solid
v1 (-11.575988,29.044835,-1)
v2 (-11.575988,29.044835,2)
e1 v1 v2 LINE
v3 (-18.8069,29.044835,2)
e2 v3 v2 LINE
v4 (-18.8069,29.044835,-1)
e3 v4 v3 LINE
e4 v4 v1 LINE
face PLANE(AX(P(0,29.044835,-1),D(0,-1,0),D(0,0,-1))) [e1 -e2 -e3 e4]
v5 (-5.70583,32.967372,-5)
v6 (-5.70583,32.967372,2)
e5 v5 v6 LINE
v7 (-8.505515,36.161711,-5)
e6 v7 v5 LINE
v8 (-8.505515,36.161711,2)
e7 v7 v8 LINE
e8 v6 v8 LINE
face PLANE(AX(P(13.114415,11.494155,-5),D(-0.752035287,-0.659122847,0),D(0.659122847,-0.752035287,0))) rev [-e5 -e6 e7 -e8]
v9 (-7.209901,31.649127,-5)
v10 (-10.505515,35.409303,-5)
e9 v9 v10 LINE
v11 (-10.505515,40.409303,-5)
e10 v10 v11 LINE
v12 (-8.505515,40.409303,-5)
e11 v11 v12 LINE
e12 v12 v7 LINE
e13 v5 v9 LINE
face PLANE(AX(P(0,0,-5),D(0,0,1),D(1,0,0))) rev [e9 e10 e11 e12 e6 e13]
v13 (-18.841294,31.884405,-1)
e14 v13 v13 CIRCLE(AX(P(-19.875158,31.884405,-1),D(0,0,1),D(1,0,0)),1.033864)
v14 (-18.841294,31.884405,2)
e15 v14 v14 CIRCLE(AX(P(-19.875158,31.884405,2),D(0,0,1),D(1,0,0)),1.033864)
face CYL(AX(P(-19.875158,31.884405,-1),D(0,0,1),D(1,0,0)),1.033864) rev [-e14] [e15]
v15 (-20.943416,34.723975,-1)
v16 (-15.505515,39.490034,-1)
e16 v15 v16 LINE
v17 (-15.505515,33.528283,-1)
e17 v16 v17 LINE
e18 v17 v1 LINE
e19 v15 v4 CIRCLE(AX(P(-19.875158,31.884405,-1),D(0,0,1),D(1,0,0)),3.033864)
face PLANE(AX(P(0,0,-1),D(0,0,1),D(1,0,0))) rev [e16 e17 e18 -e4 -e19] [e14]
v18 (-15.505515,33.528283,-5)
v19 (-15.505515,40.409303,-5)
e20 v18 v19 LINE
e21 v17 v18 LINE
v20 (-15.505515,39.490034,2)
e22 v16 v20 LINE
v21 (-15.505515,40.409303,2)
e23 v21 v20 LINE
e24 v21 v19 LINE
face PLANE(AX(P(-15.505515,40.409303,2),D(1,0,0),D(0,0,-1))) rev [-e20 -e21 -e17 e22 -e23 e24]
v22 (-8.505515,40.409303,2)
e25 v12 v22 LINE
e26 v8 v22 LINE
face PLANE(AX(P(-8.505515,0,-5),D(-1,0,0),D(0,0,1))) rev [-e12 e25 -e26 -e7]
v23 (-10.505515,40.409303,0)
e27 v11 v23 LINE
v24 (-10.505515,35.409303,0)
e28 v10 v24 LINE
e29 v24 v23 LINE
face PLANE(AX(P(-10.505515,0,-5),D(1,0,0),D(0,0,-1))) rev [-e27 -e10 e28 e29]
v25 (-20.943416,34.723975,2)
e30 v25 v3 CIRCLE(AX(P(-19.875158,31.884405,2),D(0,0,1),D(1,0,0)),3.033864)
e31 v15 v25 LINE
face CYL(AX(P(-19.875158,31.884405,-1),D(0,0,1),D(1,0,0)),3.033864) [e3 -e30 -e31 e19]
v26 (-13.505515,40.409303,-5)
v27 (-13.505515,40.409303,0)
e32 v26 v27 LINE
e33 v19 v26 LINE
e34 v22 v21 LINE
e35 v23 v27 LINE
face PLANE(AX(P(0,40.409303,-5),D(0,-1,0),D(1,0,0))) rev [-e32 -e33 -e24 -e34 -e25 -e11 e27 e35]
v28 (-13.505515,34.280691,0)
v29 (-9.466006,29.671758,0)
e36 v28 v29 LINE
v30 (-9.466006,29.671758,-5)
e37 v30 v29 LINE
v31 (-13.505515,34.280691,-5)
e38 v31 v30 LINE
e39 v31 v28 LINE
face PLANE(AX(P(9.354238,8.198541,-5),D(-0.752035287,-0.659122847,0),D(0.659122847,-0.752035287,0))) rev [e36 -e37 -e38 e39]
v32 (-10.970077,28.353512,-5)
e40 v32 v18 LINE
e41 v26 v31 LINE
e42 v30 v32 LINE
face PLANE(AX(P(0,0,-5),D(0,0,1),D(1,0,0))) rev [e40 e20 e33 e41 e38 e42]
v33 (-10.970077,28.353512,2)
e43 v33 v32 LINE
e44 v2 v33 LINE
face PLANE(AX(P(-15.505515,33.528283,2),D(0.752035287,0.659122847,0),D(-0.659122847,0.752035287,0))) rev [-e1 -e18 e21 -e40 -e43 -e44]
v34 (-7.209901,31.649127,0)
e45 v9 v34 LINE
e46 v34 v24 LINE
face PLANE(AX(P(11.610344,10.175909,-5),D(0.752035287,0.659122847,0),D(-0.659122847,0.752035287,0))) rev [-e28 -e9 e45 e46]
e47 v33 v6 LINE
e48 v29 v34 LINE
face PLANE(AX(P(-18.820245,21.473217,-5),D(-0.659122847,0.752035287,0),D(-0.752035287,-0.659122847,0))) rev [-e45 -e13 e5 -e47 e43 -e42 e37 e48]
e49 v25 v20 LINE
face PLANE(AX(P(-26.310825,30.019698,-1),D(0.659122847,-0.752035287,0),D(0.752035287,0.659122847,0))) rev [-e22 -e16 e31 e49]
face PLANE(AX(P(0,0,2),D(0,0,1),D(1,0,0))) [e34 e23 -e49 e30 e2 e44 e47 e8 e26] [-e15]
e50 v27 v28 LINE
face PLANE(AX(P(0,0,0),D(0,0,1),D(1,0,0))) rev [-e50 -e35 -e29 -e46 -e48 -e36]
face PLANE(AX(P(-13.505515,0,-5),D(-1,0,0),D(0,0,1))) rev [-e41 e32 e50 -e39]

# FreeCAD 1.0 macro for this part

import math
import FreeCAD as App
import Part
import Sketcher

V = App.Vector

doc = App.newDocument("Part")
body = doc.addObject("PartDesign::Body", "Body")

sketch1 = body.newObject("Sketcher::SketchObject", "Sketch")
sketch1.AttachmentSupport = (doc.getObject("XY_Plane"), [""])
sketch1.MapMode = "FlatFace"
sketch1.addGeometry(Part.LineSegment(V(-10.5, 35.4, 0), V(-7.2, 31.6, 0)), False)
sketch1.addGeometry(Part.LineSegment(V(-7.2, 31.6, 0), V(-5.7, 33, 0)), False)
sketch1.addGeometry(Part.LineSegment(V(-5.7, 33, 0), V(-8.5, 36.2, 0)), False)
sketch1.addGeometry(Part.LineSegment(V(-8.5, 36.2, 0), V(-8.5, 40.4, 0)), False)
sketch1.addGeometry(Part.LineSegment(V(-8.5, 40.4, 0), V(-10.5, 40.4, 0)), False)
sketch1.addGeometry(Part.LineSegment(V(-10.5, 40.4, 0), V(-10.5, 35.4, 0)), False)
sketch1.addConstraint(Sketcher.Constraint("Coincident", 0, 2, 1, 1))
sketch1.addConstraint(Sketcher.Constraint("Coincident", 1, 2, 2, 1))
sketch1.addConstraint(Sketcher.Constraint("Coincident", 2, 2, 3, 1))
sketch1.addConstraint(Sketcher.Constraint("Coincident", 3, 2, 4, 1))
sketch1.addConstraint(Sketcher.Constraint("Coincident", 4, 2, 5, 1))
sketch1.addConstraint(Sketcher.Constraint("Coincident", 5, 2, 0, 1))
sketch1.addConstraint(Sketcher.Constraint("Vertical", 3))
sketch1.addConstraint(Sketcher.Constraint("Horizontal", 4))
sketch1.addConstraint(Sketcher.Constraint("Vertical", 5))
sketch1.addConstraint(Sketcher.Constraint("Perpendicular", 0, 1))
sketch1.addConstraint(Sketcher.Constraint("Perpendicular", 1, 2))
sketch1.addConstraint(Sketcher.Constraint("DistanceX", 4, 2, 4, 1, 2.0))
sketch1.addConstraint(Sketcher.Constraint("DistanceY", 5, 2, 5, 1, 5.0))
sketch1.addConstraint(Sketcher.Constraint("Distance", 0, 5.0))
sketch1.addConstraint(Sketcher.Constraint("Distance", 1, 2.0))
sketch1.addConstraint(Sketcher.Constraint("DistanceY", 3, 1, 3, 2, 4.247592))
sketch1.addConstraint(Sketcher.Constraint("DistanceX", 0, 2, -1, 1, 7.209901))
sketch1.addConstraint(Sketcher.Constraint("DistanceY", -1, 1, 2, 2, 36.161711))
pad1 = body.newObject("PartDesign::Pad", "Pad")
pad1.Profile = sketch1
pad1.Length = 5
pad1.Reversed = True
body2 = doc.addObject("PartDesign::Body", "Body001")

sketch2 = body2.newObject("Sketcher::SketchObject", "Sketch001")
sketch2.AttachmentSupport = (doc.getObject("XY_Plane001"), [""])
sketch2.MapMode = "FlatFace"
sketch2.addGeometry(Part.LineSegment(V(-9.5, 29.7, 0), V(-13.5, 34.3, 0)), False)
sketch2.addGeometry(Part.LineSegment(V(-13.5, 34.3, 0), V(-13.5, 40.4, 0)), False)
sketch2.addGeometry(Part.LineSegment(V(-13.5, 40.4, 0), V(-15.5, 40.4, 0)), False)
sketch2.addGeometry(Part.LineSegment(V(-15.5, 40.4, 0), V(-15.5, 33.5, 0)), False)
sketch2.addGeometry(Part.LineSegment(V(-15.5, 33.5, 0), V(-11, 28.4, 0)), False)
sketch2.addGeometry(Part.LineSegment(V(-11, 28.4, 0), V(-9.5, 29.7, 0)), False)
sketch2.addConstraint(Sketcher.Constraint("Coincident", 0, 2, 1, 1))
sketch2.addConstraint(Sketcher.Constraint("Coincident", 1, 2, 2, 1))
sketch2.addConstraint(Sketcher.Constraint("Coincident", 2, 2, 3, 1))
sketch2.addConstraint(Sketcher.Constraint("Coincident", 3, 2, 4, 1))
sketch2.addConstraint(Sketcher.Constraint("Coincident", 4, 2, 5, 1))
sketch2.addConstraint(Sketcher.Constraint("Coincident", 5, 2, 0, 1))
sketch2.addConstraint(Sketcher.Constraint("Vertical", 1))
sketch2.addConstraint(Sketcher.Constraint("Horizontal", 2))
sketch2.addConstraint(Sketcher.Constraint("Vertical", 3))
sketch2.addConstraint(Sketcher.Constraint("Parallel", 0, 4))
sketch2.addConstraint(Sketcher.Constraint("Perpendicular", 4, 5))
sketch2.addConstraint(Sketcher.Constraint("DistanceX", 2, 2, 2, 1, 2.0))
sketch2.addConstraint(Sketcher.Constraint("Distance", 5, 2.0))
sketch2.addConstraint(Sketcher.Constraint("DistanceY", 3, 2, 3, 1, 6.88102))
sketch2.addConstraint(Sketcher.Constraint("Distance", 4, 6.88102))
sketch2.addConstraint(Sketcher.Constraint("DistanceY", 1, 1, 1, 2, 6.128612))
sketch2.addConstraint(Sketcher.Constraint("DistanceY", -1, 1, 0, 2, 34.280691))
sketch2.addConstraint(Sketcher.Constraint("DistanceX", 0, 2, -1, 1, 13.505515))
pad2 = body2.newObject("PartDesign::Pad", "Pad001")
pad2.Profile = sketch2
pad2.Length = 5
pad2.Reversed = True
body.AllowCompound = True
doc.recompute()

boolean = body.newObject("PartDesign::Boolean", "Boolean")
boolean.Type = "Fuse"
boolean.addObjects([body2])

sketch3 = body.newObject("Sketcher::SketchObject", "Sketch002")
sketch3.AttachmentSupport = (doc.getObject("XY_Plane"), [""])
sketch3.MapMode = "FlatFace"
sketch3.addGeometry(Part.LineSegment(V(-11, 28.4, 0), V(-5.7, 33, 0)), False)
sketch3.addGeometry(Part.LineSegment(V(-5.7, 33, 0), V(-8.5, 36.2, 0)), False)
sketch3.addGeometry(Part.LineSegment(V(-8.5, 36.2, 0), V(-8.5, 40.4, 0)), False)
sketch3.addGeometry(Part.LineSegment(V(-8.5, 40.4, 0), V(-15.5, 40.4, 0)), False)
sketch3.addGeometry(Part.LineSegment(V(-15.5, 40.4, 0), V(-15.5, 33.5, 0)), False)
sketch3.addGeometry(Part.LineSegment(V(-15.5, 33.5, 0), V(-11, 28.4, 0)), False)
sketch3.addConstraint(Sketcher.Constraint("Coincident", 0, 2, 1, 1))
sketch3.addConstraint(Sketcher.Constraint("Coincident", 1, 2, 2, 1))
sketch3.addConstraint(Sketcher.Constraint("Coincident", 2, 2, 3, 1))
sketch3.addConstraint(Sketcher.Constraint("Coincident", 3, 2, 4, 1))
sketch3.addConstraint(Sketcher.Constraint("Coincident", 4, 2, 5, 1))
sketch3.addConstraint(Sketcher.Constraint("Coincident", 5, 2, 0, 1))
sketch3.addConstraint(Sketcher.Constraint("Vertical", 2))
sketch3.addConstraint(Sketcher.Constraint("Horizontal", 3))
sketch3.addConstraint(Sketcher.Constraint("Vertical", 4))
sketch3.addConstraint(Sketcher.Constraint("Perpendicular", 0, 1))
sketch3.addConstraint(Sketcher.Constraint("Parallel", 1, 5))
sketch3.addConstraint(Sketcher.Constraint("DistanceX", 3, 2, 3, 1, 7.0))
sketch3.addConstraint(Sketcher.Constraint("Distance", 0, 7.0))
sketch3.addConstraint(Sketcher.Constraint("DistanceY", 2, 1, 2, 2, 4.247592))
sketch3.addConstraint(Sketcher.Constraint("DistanceY", 4, 2, 4, 1, 6.88102))
sketch3.addConstraint(Sketcher.Constraint("DistanceY", 5, 2, 1, 2, 7.808199))
sketch3.addConstraint(Sketcher.Constraint("DistanceX", 0, 2, -1, 1, 5.70583))
sketch3.addConstraint(Sketcher.Constraint("DistanceY", -1, 1, 1, 2, 36.161711))
pad3 = body.newObject("PartDesign::Pad", "Pad002")
pad3.Profile = sketch3
pad3.Length = 2

sketch4 = body.newObject("Sketcher::SketchObject", "Sketch003")
sketch4.AttachmentSupport = (doc.getObject("XY_Plane"), [""])
sketch4.MapMode = "FlatFace"
sketch4.AttachmentOffset = App.Placement(V(0, 0, 2), App.Rotation())
sketch4.addGeometry(Part.LineSegment(V(-11.6, 29, 0), V(-15.5, 33.5, 0)), False)
sketch4.addGeometry(Part.LineSegment(V(-15.5, 33.5, 0), V(-15.5, 39.5, 0)), False)
sketch4.addGeometry(Part.LineSegment(V(-15.5, 39.5, 0), V(-20.9, 34.7, 0)), False)
sketch4.addGeometry(Part.ArcOfCircle(Part.Circle(V(-19.9, 31.9, 0), V(0, 0, 1), 3), math.radians(111), math.radians(291)), False)
sketch4.addGeometry(Part.LineSegment(V(-18.8, 29, 0), V(-11.6, 29, 0)), False)
sketch4.addGeometry(Part.Circle(V(-19.9, 31.9, 0), V(0, 0, 1), 1), False)
sketch4.addConstraint(Sketcher.Constraint("Coincident", 0, 2, 1, 1))
sketch4.addConstraint(Sketcher.Constraint("Coincident", 1, 2, 2, 1))
sketch4.addConstraint(Sketcher.Constraint("Coincident", 2, 2, 3, 1))
sketch4.addConstraint(Sketcher.Constraint("Coincident", 3, 2, 4, 1))
sketch4.addConstraint(Sketcher.Constraint("Coincident", 4, 2, 0, 1))
sketch4.addConstraint(Sketcher.Constraint("Vertical", 1))
sketch4.addConstraint(Sketcher.Constraint("Horizontal", 4))
sketch4.addConstraint(Sketcher.Constraint("Coincident", 5, 3, 3, 3))
sketch4.addConstraint(Sketcher.Constraint("Perpendicular", 0, 2))
sketch4.addConstraint(Sketcher.Constraint("Diameter", 5, 2.067728))
sketch4.addConstraint(Sketcher.Constraint("Radius", 3, 3.033864))
sketch4.addConstraint(Sketcher.Constraint("DistanceY", 1, 1, 1, 2, 5.961752))
sketch4.addConstraint(Sketcher.Constraint("DistanceX", 3, 2, -1, 1, 18.8069))
sketch4.addConstraint(Sketcher.Constraint("DistanceX", 2, 2, 0, 2, 5.437901))
sketch4.addConstraint(Sketcher.Constraint("DistanceY", 3, 2, 1, 2, 10.445199))
sketch4.addConstraint(Sketcher.Constraint("Distance", 0, 5.961752))
sketch4.addConstraint(Sketcher.Constraint("DistanceX", 3, 3, -1, 1, 19.875158))
sketch4.addConstraint(Sketcher.Constraint("DistanceY", -1, 1, 3, 3, 31.884405))
pad4 = body.newObject("PartDesign::Pad", "Pad003")
pad4.Profile = sketch4
pad4.Length = 3
pad4.Reversed = True

doc.recompute()
